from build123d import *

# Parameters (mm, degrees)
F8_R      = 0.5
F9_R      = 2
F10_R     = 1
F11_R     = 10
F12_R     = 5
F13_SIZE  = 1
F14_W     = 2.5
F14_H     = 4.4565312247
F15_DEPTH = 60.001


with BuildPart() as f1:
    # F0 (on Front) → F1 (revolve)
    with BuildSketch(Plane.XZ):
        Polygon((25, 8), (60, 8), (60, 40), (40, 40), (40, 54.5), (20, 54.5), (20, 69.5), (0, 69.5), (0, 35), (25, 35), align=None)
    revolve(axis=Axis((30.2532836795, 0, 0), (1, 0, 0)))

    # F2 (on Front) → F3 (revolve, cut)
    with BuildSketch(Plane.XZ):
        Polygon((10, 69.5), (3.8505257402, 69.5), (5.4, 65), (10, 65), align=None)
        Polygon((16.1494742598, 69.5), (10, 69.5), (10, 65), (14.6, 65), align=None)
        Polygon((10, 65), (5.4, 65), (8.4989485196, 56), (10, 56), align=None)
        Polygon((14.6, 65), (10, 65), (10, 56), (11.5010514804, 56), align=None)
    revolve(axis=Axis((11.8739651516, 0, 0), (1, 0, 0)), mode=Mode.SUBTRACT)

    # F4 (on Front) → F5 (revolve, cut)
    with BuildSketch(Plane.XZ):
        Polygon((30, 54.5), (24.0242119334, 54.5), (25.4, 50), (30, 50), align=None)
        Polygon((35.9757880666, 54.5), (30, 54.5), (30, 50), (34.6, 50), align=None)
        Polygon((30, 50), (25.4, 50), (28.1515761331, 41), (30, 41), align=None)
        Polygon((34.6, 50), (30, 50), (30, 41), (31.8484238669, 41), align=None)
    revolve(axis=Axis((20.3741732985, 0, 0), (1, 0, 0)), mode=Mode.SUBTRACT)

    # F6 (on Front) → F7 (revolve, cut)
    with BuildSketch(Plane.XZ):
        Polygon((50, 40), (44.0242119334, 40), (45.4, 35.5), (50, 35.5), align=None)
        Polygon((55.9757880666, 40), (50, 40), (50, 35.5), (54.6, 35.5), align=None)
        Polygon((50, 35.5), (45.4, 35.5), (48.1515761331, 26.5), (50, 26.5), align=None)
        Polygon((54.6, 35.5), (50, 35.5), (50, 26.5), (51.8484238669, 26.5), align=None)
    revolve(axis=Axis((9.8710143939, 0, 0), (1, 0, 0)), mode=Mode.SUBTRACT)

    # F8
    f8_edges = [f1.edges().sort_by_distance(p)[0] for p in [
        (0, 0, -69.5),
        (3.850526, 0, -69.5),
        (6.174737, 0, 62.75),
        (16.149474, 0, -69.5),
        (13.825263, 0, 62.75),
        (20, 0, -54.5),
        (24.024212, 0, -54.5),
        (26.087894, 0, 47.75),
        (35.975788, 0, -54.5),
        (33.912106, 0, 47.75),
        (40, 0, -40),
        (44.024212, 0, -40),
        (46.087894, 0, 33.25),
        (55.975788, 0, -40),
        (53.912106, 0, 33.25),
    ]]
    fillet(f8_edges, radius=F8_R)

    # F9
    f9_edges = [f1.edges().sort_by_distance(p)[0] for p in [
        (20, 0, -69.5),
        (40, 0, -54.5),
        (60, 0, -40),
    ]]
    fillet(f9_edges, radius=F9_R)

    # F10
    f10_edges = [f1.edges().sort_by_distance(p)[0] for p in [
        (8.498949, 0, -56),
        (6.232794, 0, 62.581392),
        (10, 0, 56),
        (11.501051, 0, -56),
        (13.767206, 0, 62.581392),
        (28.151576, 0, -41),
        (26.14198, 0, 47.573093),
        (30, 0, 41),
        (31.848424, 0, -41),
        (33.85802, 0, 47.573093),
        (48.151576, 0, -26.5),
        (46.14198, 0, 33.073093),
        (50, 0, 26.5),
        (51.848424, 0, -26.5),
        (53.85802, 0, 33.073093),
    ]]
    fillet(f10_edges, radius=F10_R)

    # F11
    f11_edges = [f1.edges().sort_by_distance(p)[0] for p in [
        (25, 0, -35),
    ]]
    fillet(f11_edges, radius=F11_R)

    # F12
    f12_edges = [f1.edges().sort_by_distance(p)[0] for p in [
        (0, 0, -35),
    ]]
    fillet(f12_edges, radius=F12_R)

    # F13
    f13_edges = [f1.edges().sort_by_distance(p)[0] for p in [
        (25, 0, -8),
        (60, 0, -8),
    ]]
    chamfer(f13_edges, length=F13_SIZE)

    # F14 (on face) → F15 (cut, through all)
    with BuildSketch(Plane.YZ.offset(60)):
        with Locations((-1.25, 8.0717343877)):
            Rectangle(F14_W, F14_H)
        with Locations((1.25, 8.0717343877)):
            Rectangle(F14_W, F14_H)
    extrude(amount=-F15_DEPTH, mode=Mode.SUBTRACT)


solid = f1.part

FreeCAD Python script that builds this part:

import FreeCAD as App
import Part
import Sketcher
Q = App.Units.Quantity


def edges_at(feature, points):
    """Names of the edges that pass closest to the given points."""
    edges = feature.Shape.Edges
    near = lambda p: min(range(len(edges)), key=lambda i: edges[i].distToShape(Part.Vertex(*p))[0])
    return sorted({f"Edge{near(p) + 1}" for p in points})


def add_polygon(sketch, points):
    """Adds a closed chain of lines whose ends are joined by coincident constraints."""
    first, n = sketch.GeometryCount, len(points)
    for a, b in zip(points, points[1:] + points[:1]):
        sketch.addGeometry(Part.LineSegment(App.Vector(*a, 0), App.Vector(*b, 0)), False)
    for i in range(n):
        sketch.addConstraint(Sketcher.Constraint("Coincident", first + i, 2, first + (i + 1) % n, 1))

doc = App.newDocument("Part")
body = doc.addObject("PartDesign::Body", "Body")

# Sketch on XZ plane
sketch1 = doc.addObject("Sketcher::SketchObject", "Sketch")
body.addObject(sketch1)
sketch1.AttachmentSupport = (doc.XZ_Plane, [""])
sketch1.MapMode = "FlatFace"
add_polygon(sketch1, [(25, 8), (60, 8), (60, 40), (40, 40), (40, 54.5), (20, 54.5), (20, 69.5), (0, 69.5), (0, 35), (25, 35)])  # lines 0-9
sketch1.addConstraint([
    Sketcher.Constraint("Horizontal", 0),
    Sketcher.Constraint("Vertical", 1),
    Sketcher.Constraint("Horizontal", 2),
    Sketcher.Constraint("Vertical", 3),
    Sketcher.Constraint("Horizontal", 4),
    Sketcher.Constraint("Vertical", 5),
    Sketcher.Constraint("Horizontal", 6),
    Sketcher.Constraint("Vertical", 7),
    Sketcher.Constraint("Horizontal", 8),
    Sketcher.Constraint("Vertical", 9),
    Sketcher.Constraint("PointOnObject", 6, 2, -2),
    Sketcher.Constraint("Equal", 2, 4),
    Sketcher.Constraint("Equal", 4, 6),
    Sketcher.Constraint("DistanceX", 0, 1, 0, 2, 35.0),
    Sketcher.Constraint("DistanceX", 2, 2, 2, 1, 20.0),
    Sketcher.Constraint("DistanceY", 1, 1, 1, 2, 32.0),
    Sketcher.Constraint("DistanceY", 5, 1, 5, 2, 15.0),
    Sketcher.Constraint("DistanceY", 9, 2, 9, 1, 27.0),
    Sketcher.Constraint("DistanceY", 3, 1, 3, 2, 14.5),
    Sketcher.Constraint("DistanceY", -1, 1, 0, 2, 8.0),
])
revolution = doc.addObject("PartDesign::Revolution", "Revolution")
body.addObject(revolution)
revolution.Profile = sketch1
revolution.ReferenceAxis = (sketch1, ["H_Axis"])
revolution.Angle = 360

# Sketch on XZ plane
sketch2 = doc.addObject("Sketcher::SketchObject", "Sketch001")
body.addObject(sketch2)
sketch2.AttachmentSupport = (doc.XZ_Plane, [""])
sketch2.MapMode = "FlatFace"
add_polygon(sketch2, [(3.850526, 69.5), (8.498949, 56), (11.501051, 56), (16.149474, 69.5)])  # lines 0-3
sketch2.addConstraint([
    Sketcher.Constraint("Horizontal", 1),
    Sketcher.Constraint("Horizontal", 3),
    Sketcher.Constraint("Equal", 0, 2),
    Sketcher.Constraint("Angle", 0, Q("-71 deg")),
    Sketcher.Constraint("DistanceY", -1, 1, 0, 2, 56.0),
    Sketcher.Constraint("DistanceY", -1, 1, 2, 2, 69.5),
    Sketcher.Constraint("DistanceX", 3, 2, 3, 1, 12.298949),
    Sketcher.Constraint("DistanceX", -1, 1, 0, 2, 8.498949),
])
groove = doc.addObject("PartDesign::Groove", "Groove")
body.addObject(groove)
groove.Profile = sketch2
groove.ReferenceAxis = (sketch2, ["H_Axis"])
groove.Angle = 360

# Sketch on XZ plane
sketch3 = doc.addObject("Sketcher::SketchObject", "Sketch002")
body.addObject(sketch3)
sketch3.AttachmentSupport = (doc.XZ_Plane, [""])
sketch3.MapMode = "FlatFace"
add_polygon(sketch3, [(24.024212, 54.5), (25.4, 50), (28.151576, 41), (31.848424, 41), (34.6, 50), (35.975788, 54.5)])  # lines 0-5
sketch3.addConstraint([
    Sketcher.Constraint("Horizontal", 2),
    Sketcher.Constraint("Horizontal", 5),
    Sketcher.Constraint("Parallel", 0, 1),
    Sketcher.Constraint("Parallel", 3, 4),
    Sketcher.Constraint("Horizontal", 0, 2, 3, 2),
    Sketcher.Constraint("Equal", 1, 3),
    Sketcher.Constraint("Angle", 0, Q("-73 deg")),
    Sketcher.Constraint("DistanceY", -1, 1, 0, 2, 50.0),
    Sketcher.Constraint("DistanceY", -1, 1, 1, 2, 41.0),
    Sketcher.Constraint("DistanceX", -1, 1, 0, 2, 25.4),
    Sketcher.Constraint("DistanceX", -1, 1, 3, 2, 34.6),
    Sketcher.Constraint("DistanceY", -1, 1, 4, 2, 54.5),
])
groove2 = doc.addObject("PartDesign::Groove", "Groove001")
body.addObject(groove2)
groove2.Profile = sketch3
groove2.ReferenceAxis = (sketch3, ["H_Axis"])
groove2.Angle = 360

# Sketch on XZ plane
sketch4 = doc.addObject("Sketcher::SketchObject", "Sketch003")
body.addObject(sketch4)
sketch4.AttachmentSupport = (doc.XZ_Plane, [""])
sketch4.MapMode = "FlatFace"
add_polygon(sketch4, [(44.024212, 40), (45.4, 35.5), (48.151576, 26.5), (51.848424, 26.5), (54.6, 35.5), (55.975788, 40)])  # lines 0-5
sketch4.addConstraint([
    Sketcher.Constraint("Horizontal", 2),
    Sketcher.Constraint("Horizontal", 5),
    Sketcher.Constraint("Parallel", 0, 1),
    Sketcher.Constraint("Parallel", 3, 4),
    Sketcher.Constraint("Horizontal", 0, 2, 3, 2),
    Sketcher.Constraint("Equal", 1, 3),
    Sketcher.Constraint("Angle", 0, Q("-73 deg")),
    Sketcher.Constraint("DistanceY", -1, 1, 4, 2, 40.0),
    Sketcher.Constraint("DistanceY", 1, 2, 0, 2, 9.0),
    Sketcher.Constraint("DistanceX", -1, 1, 0, 2, 45.4),
    Sketcher.Constraint("DistanceY", -1, 1, 0, 2, 35.5),
    Sketcher.Constraint("DistanceX", -1, 1, 3, 2, 54.6),
])
groove3 = doc.addObject("PartDesign::Groove", "Groove002")
body.addObject(groove3)
groove3.Profile = sketch4
groove3.ReferenceAxis = (sketch4, ["H_Axis"])
groove3.Angle = 360
doc.recompute()

fillet = doc.addObject("PartDesign::Fillet", "Fillet")
body.addObject(fillet)
fillet.Base = (groove3, edges_at(groove3, [
    (0, 0, -69.5),
    (3.851, 0, -69.5),
    (6.175, 0, 62.75),
    (16.149, 0, -69.5),
    (13.825, 0, 62.75),
    (20, 0, -54.5),
    (24.024, 0, -54.5),
    (26.776, 0, 45.5),
    (35.976, 0, -54.5),
    (33.224, 0, 45.5),
    (40, 0, -40),
    (44.024, 0, -40),
    (46.776, 0, 31),
    (55.976, 0, -40),
    (53.224, 0, 31),
]))
fillet.Radius = 0.5
doc.recompute()

fillet2 = doc.addObject("PartDesign::Fillet", "Fillet001")
body.addObject(fillet2)
fillet2.Base = (fillet, edges_at(fillet, [(20, 0, -69.5), (40, 0, -54.5), (60, 0, -40)]))
fillet2.Radius = 2
doc.recompute()

fillet3 = doc.addObject("PartDesign::Fillet", "Fillet002")
body.addObject(fillet3)
fillet3.Base = (fillet2, edges_at(fillet2, [
    (8.499, 0, -56),
    (6.233, 0, 62.581),
    (10, 0, 56),
    (11.501, 0, -56),
    (13.767, 0, 62.581),
    (28.152, 0, -41),
    (26.776, 0, 45.5),
    (30, 0, 41),
    (31.848, 0, -41),
    (33.224, 0, 45.5),
    (48.152, 0, -26.5),
    (46.776, 0, 31),
    (50, 0, 26.5),
    (51.848, 0, -26.5),
    (53.224, 0, 31),
]))
fillet3.Radius = 1
doc.recompute()

fillet4 = doc.addObject("PartDesign::Fillet", "Fillet003")
body.addObject(fillet4)
fillet4.Base = (fillet3, edges_at(fillet3, [(25, 0, -35)]))
fillet4.Radius = 10
doc.recompute()

fillet5 = doc.addObject("PartDesign::Fillet", "Fillet004")
body.addObject(fillet5)
fillet5.Base = (fillet4, edges_at(fillet4, [(0, 0, -35)]))
fillet5.Radius = 5
doc.recompute()

chamfer = doc.addObject("PartDesign::Chamfer", "Chamfer")
body.addObject(chamfer)
chamfer.Base = (fillet5, edges_at(fillet5, [(25, 0, -8), (60, 0, -8)]))
chamfer.Size = 1

# Sketch on YZ plane
sketch5 = doc.addObject("Sketcher::SketchObject", "Sketch004")
body.addObject(sketch5)
sketch5.AttachmentSupport = (doc.YZ_Plane, [""])
sketch5.MapMode = "FlatFace"
sketch5.AttachmentOffset = App.Placement(App.Vector(0, 0, 60), App.Rotation())
add_polygon(sketch5, [(-2.5, 10.3), (-2.5, 5.843469), (2.5, 5.843469), (2.5, 10.3)])  # lines 0-3
sketch5.addConstraint([
    Sketcher.Constraint("Vertical", 0),
    Sketcher.Constraint("Horizontal", 1),
    Sketcher.Constraint("Vertical", 2),
    Sketcher.Constraint("Horizontal", 3),
    Sketcher.Constraint("DistanceX", 1, 1, 1, 2, 5.0),
    Sketcher.Constraint("DistanceX", 0, 2, -1, 1, 2.5),
    Sketcher.Constraint("DistanceY", -1, 1, 2, 2, 10.3),
    Sketcher.Constraint("DistanceY", 0, 2, 0, 1, 4.456531),
])
pocket1 = doc.addObject("PartDesign::Pocket", "Pocket")
body.addObject(pocket1)
pocket1.Profile = sketch5
pocket1.Type = "ThroughAll"

doc.recompute()
